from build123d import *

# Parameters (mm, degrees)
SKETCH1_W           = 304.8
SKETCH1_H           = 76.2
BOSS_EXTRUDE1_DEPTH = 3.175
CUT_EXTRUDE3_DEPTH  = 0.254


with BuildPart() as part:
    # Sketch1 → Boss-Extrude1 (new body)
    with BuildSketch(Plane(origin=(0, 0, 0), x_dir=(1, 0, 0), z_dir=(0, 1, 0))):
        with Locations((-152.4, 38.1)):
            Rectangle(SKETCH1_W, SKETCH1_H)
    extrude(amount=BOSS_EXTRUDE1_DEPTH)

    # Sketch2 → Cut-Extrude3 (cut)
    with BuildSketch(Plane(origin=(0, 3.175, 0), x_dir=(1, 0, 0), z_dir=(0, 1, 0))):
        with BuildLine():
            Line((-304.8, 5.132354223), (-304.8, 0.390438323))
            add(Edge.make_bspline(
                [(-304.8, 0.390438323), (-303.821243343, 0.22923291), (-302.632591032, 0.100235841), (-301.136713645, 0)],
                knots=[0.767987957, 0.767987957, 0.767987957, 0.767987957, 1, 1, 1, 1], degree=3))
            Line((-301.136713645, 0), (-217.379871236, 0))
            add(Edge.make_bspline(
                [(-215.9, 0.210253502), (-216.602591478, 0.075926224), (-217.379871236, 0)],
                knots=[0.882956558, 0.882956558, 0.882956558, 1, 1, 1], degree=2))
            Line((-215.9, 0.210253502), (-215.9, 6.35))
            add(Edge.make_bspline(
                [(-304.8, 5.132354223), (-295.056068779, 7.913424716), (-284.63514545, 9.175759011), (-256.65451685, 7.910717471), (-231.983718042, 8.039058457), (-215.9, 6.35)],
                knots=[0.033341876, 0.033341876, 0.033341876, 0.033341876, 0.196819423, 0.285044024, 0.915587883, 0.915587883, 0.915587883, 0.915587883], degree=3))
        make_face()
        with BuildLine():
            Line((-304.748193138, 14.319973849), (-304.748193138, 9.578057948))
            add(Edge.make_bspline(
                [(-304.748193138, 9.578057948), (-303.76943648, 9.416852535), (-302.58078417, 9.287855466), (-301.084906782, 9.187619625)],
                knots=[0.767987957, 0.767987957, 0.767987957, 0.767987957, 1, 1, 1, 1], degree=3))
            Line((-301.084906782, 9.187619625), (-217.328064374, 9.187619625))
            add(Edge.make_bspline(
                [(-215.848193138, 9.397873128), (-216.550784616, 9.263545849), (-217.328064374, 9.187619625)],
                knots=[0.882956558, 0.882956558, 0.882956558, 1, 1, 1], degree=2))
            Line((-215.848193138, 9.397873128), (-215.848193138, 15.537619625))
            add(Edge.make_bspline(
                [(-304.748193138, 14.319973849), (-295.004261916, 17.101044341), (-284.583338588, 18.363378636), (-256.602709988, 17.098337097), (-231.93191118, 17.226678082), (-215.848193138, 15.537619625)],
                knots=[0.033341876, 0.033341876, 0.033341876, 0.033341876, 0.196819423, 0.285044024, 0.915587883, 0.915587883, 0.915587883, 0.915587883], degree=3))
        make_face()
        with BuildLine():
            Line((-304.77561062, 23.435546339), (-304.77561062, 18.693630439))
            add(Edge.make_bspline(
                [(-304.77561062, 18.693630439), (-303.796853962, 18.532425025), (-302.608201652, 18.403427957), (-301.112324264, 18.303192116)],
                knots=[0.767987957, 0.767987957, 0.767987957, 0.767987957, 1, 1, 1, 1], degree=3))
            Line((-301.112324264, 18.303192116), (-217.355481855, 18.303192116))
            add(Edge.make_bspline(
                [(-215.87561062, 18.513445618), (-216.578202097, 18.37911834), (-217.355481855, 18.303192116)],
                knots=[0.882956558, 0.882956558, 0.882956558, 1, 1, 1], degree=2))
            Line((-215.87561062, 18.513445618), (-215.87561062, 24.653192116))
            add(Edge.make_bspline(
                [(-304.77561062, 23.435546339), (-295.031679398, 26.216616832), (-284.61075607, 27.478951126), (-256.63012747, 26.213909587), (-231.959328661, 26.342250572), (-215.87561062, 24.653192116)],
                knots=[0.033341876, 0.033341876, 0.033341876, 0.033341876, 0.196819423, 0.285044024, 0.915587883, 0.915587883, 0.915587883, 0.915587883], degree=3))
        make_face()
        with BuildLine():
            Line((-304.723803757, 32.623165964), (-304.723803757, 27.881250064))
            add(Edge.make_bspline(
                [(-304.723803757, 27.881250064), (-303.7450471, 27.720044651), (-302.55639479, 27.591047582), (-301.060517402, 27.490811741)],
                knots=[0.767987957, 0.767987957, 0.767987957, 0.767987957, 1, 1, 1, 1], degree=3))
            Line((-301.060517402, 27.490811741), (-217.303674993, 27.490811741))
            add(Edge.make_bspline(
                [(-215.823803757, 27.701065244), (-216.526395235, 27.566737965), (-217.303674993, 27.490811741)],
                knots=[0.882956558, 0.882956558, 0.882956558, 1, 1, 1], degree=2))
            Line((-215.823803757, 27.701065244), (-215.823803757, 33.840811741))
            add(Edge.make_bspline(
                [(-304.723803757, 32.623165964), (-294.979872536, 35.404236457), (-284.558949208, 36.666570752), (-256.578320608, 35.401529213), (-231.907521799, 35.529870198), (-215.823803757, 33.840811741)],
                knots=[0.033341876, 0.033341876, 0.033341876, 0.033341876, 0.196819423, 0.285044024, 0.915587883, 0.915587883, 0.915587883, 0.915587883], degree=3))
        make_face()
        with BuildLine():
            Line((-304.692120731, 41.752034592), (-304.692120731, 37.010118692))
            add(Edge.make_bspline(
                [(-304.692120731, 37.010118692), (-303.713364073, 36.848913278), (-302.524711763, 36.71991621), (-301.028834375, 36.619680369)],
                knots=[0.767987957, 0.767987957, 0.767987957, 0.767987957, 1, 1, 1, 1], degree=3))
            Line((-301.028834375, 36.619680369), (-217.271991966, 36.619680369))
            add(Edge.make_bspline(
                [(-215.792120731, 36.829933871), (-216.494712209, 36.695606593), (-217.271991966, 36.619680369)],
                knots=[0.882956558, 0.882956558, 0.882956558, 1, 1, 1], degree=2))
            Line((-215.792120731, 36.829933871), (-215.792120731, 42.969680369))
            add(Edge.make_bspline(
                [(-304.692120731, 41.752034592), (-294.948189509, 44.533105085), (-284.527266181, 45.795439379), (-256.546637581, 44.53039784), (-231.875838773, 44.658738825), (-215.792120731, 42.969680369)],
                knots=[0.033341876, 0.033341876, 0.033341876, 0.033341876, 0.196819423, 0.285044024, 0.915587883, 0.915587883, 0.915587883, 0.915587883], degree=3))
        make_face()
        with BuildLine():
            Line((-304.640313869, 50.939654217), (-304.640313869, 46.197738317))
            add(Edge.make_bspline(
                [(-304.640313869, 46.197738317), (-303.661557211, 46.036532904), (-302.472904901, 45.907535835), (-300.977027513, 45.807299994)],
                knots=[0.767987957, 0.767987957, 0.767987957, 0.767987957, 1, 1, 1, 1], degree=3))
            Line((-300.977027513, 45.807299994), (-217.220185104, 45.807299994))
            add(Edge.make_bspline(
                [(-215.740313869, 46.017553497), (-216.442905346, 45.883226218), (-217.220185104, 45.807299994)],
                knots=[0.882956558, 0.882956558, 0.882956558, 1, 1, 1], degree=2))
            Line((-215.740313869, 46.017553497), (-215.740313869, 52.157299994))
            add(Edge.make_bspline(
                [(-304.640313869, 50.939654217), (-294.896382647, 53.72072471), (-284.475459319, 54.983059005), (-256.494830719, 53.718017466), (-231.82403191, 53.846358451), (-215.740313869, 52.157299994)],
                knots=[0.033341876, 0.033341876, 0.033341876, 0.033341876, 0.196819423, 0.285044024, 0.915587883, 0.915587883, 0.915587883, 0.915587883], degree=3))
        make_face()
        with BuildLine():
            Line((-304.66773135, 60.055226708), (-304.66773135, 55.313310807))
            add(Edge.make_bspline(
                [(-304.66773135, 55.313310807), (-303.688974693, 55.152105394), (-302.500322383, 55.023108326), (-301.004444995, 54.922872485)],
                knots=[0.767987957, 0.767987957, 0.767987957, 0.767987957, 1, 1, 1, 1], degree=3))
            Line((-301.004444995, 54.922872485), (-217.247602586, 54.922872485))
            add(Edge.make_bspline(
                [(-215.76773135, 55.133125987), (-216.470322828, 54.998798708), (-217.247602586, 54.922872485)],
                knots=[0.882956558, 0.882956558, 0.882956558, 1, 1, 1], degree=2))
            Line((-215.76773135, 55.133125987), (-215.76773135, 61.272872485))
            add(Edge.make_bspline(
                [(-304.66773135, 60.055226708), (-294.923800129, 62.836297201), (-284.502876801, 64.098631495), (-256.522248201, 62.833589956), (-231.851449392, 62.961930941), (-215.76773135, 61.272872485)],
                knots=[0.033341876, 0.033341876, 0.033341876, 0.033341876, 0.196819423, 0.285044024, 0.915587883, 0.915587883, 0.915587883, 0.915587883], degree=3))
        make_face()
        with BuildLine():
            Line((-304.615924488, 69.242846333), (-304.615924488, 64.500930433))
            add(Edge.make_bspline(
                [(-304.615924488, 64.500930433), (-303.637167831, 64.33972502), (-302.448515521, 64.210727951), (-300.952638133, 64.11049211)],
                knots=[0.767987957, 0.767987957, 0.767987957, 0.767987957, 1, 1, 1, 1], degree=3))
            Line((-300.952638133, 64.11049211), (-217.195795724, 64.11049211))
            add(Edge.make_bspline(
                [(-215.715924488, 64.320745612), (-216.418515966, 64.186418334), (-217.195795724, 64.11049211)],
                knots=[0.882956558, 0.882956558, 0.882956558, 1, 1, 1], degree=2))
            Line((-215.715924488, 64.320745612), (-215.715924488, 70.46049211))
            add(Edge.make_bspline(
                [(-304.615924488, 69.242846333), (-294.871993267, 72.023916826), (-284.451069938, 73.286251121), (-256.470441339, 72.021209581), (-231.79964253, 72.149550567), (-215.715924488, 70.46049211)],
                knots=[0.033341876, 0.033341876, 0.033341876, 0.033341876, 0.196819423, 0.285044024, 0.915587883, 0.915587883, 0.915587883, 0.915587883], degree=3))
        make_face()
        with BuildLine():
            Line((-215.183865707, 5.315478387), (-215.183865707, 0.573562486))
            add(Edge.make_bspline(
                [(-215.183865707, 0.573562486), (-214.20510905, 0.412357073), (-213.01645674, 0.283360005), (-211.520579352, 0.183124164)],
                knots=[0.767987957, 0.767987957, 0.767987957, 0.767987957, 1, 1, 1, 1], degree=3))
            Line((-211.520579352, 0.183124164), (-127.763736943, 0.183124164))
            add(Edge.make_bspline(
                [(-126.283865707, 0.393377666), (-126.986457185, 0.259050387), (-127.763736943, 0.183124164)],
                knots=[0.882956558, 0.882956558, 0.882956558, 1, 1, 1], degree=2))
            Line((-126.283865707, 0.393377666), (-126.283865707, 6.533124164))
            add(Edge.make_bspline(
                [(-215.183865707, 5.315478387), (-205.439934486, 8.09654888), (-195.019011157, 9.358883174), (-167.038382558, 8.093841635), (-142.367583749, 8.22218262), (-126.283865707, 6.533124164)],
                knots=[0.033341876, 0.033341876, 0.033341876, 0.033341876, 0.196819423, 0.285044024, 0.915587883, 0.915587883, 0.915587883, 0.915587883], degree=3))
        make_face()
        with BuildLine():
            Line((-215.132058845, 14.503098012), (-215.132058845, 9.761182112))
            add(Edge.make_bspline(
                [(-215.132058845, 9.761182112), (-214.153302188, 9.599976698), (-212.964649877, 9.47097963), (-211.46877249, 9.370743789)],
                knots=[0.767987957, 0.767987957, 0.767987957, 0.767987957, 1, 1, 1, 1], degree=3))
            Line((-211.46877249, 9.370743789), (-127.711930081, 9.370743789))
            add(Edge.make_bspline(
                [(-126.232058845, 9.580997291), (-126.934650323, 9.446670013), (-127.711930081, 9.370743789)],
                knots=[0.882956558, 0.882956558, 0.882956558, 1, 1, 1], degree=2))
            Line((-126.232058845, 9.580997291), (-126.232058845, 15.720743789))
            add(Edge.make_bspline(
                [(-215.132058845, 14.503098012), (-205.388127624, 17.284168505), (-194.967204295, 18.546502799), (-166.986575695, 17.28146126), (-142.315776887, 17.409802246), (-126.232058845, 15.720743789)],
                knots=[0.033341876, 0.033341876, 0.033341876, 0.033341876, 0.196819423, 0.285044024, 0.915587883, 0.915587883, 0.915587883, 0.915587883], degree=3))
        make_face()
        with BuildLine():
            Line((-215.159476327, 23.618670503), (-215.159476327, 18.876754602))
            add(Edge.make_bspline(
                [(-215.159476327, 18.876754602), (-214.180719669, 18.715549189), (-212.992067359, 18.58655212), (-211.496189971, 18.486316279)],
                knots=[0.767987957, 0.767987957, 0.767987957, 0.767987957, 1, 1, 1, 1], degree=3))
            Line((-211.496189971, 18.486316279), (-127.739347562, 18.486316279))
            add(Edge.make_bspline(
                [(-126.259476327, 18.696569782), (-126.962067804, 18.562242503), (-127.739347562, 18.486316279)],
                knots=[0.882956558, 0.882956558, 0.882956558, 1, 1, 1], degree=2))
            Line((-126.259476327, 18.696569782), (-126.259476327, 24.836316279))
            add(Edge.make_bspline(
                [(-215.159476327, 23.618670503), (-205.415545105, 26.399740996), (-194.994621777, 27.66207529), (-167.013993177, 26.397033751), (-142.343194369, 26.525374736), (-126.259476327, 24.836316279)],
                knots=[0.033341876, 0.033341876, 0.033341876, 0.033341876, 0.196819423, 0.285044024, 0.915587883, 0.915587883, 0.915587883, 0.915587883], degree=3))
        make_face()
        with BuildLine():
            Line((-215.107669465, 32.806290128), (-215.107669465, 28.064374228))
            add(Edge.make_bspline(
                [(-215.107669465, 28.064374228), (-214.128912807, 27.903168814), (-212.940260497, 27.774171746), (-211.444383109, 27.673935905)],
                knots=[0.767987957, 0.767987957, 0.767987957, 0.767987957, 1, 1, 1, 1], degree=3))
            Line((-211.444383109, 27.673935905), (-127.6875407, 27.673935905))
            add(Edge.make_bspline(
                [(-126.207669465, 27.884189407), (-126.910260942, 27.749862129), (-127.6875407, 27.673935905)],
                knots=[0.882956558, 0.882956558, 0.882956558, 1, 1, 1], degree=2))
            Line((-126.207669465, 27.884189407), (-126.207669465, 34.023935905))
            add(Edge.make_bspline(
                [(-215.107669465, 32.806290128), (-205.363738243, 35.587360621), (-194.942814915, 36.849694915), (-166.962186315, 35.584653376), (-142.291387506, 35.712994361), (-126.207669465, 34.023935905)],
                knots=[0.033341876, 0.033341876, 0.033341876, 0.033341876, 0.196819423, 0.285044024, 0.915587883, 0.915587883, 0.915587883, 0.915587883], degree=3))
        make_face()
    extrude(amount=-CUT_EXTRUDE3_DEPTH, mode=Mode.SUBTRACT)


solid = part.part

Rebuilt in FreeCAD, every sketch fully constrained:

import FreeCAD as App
import Part
import Sketcher
Q = App.Units.Quantity


def add_polygon(sketch, points):
    """Adds a closed chain of lines whose ends are joined by coincident constraints."""
    first, n = sketch.GeometryCount, len(points)
    for a, b in zip(points, points[1:] + points[:1]):
        sketch.addGeometry(Part.LineSegment(App.Vector(*a, 0), App.Vector(*b, 0)), False)
    for i in range(n):
        sketch.addConstraint(Sketcher.Constraint("Coincident", first + i, 2, first + (i + 1) % n, 1))

doc = App.newDocument("Part")
body = doc.addObject("PartDesign::Body", "Body")

# Sketch on XZ plane
sketch1 = body.newObject("Sketcher::SketchObject", "Sketch")
sketch1.AttachmentSupport = (doc.getObject("XZ_Plane"), [""])
sketch1.MapMode = "FlatFace"
add_polygon(sketch1, [(-305, -76), (-305, 0), (0, 0), (0, -76)])  # lines 0-3
sketch1.addConstraint([
    Sketcher.Constraint("Vertical", 0),
    Sketcher.Constraint("Horizontal", 1),
    Sketcher.Constraint("Vertical", 2),
    Sketcher.Constraint("Horizontal", 3),
    Sketcher.Constraint("Coincident", 1, 2, -1, 1),
    Sketcher.Constraint("DistanceX", 1, 1, 1, 2, Q("12 in")),
    Sketcher.Constraint("DistanceY", 0, 1, 0, 2, Q("3 in")),
])
pad1 = body.newObject("PartDesign::Pad", "Pad")
pad1.Profile = sketch1
pad1.Length = Q("0.125 in")
pad1.Reversed = True

# Sketch on XZ plane
sketch2 = body.newObject("Sketcher::SketchObject", "Sketch001")
sketch2.AttachmentSupport = (doc.getObject("XZ_Plane"), [""])
sketch2.MapMode = "FlatFace"
sketch2.AttachmentOffset = App.Placement(App.Vector(0, 0, -0.125 * 25.4), App.Rotation())
sketch2.addGeometry([
    Part.LineSegment(App.Vector(-304.8, -5.132354, 0), App.Vector(-304.8, -0.390438, 0)),  # 0
    Part.BSplineCurve([App.Vector(-304.8, -0.390438, 0), App.Vector(-303.821243, -0.229233, 0), App.Vector(-302.632591, -0.100236, 0), App.Vector(-301.136714, 0, 0)], [4, 4], [0.767987957, 1], False, 3, [1, 1, 1, 1], False),  # 1
    Part.LineSegment(App.Vector(-301.136714, 0, 0), App.Vector(-217.379871, 0, 0)),  # 2
    Part.BSplineCurve([App.Vector(-215.9, -0.210254, 0), App.Vector(-216.602591, -0.075926, 0), App.Vector(-217.379871, 0, 0)], [3, 3], [0.882956558, 1], False, 2, [1, 1, 1], False),  # 3
    Part.LineSegment(App.Vector(-215.9, -0.210254, 0), App.Vector(-215.9, -6.35, 0)),  # 4
    Part.BSplineCurve([App.Vector(-304.8, -5.132354, 0), App.Vector(-295.056069, -7.913425, 0), App.Vector(-284.635145, -9.175759, 0), App.Vector(-256.654517, -7.910717, 0), App.Vector(-231.983718, -8.039058, 0), App.Vector(-215.9, -6.35, 0)], [4, 1, 1, 4], [0.033341876, 0.196819423, 0.285044024, 0.915587883], False, 3, [1, 1, 1, 1, 1, 1], False),  # 5
    Part.LineSegment(App.Vector(-304.748193, -14.319974, 0), App.Vector(-304.748193, -9.578058, 0)),  # 6
    Part.BSplineCurve([App.Vector(-304.748193, -9.578058, 0), App.Vector(-303.769436, -9.416853, 0), App.Vector(-302.580784, -9.287855, 0), App.Vector(-301.084907, -9.18762, 0)], [4, 4], [0.767987957, 1], False, 3, [1, 1, 1, 1], False),  # 7
    Part.LineSegment(App.Vector(-301.084907, -9.18762, 0), App.Vector(-217.328064, -9.18762, 0)),  # 8
    Part.BSplineCurve([App.Vector(-215.848193, -9.397873, 0), App.Vector(-216.550785, -9.263546, 0), App.Vector(-217.328064, -9.18762, 0)], [3, 3], [0.882956558, 1], False, 2, [1, 1, 1], False),  # 9
    Part.LineSegment(App.Vector(-215.848193, -9.397873, 0), App.Vector(-215.848193, -15.53762, 0)),  # 10
    Part.BSplineCurve([App.Vector(-304.748193, -14.319974, 0), App.Vector(-295.004262, -17.101044, 0), App.Vector(-284.583339, -18.363379, 0), App.Vector(-256.60271, -17.098337, 0), App.Vector(-231.931911, -17.226678, 0), App.Vector(-215.848193, -15.53762, 0)], [4, 1, 1, 4], [0.033341876, 0.196819423, 0.285044024, 0.915587883], False, 3, [1, 1, 1, 1, 1, 1], False),  # 11
    Part.LineSegment(App.Vector(-304.775611, -23.435546, 0), App.Vector(-304.775611, -18.69363, 0)),  # 12
    Part.BSplineCurve([App.Vector(-304.775611, -18.69363, 0), App.Vector(-303.796854, -18.532425, 0), App.Vector(-302.608202, -18.403428, 0), App.Vector(-301.112324, -18.303192, 0)], [4, 4], [0.767987957, 1], False, 3, [1, 1, 1, 1], False),  # 13
    Part.LineSegment(App.Vector(-301.112324, -18.303192, 0), App.Vector(-217.355482, -18.303192, 0)),  # 14
    Part.BSplineCurve([App.Vector(-215.875611, -18.513446, 0), App.Vector(-216.578202, -18.379118, 0), App.Vector(-217.355482, -18.303192, 0)], [3, 3], [0.882956558, 1], False, 2, [1, 1, 1], False),  # 15
    Part.LineSegment(App.Vector(-215.875611, -18.513446, 0), App.Vector(-215.875611, -24.653192, 0)),  # 16
    Part.BSplineCurve([App.Vector(-304.775611, -23.435546, 0), App.Vector(-295.031679, -26.216617, 0), App.Vector(-284.610756, -27.478951, 0), App.Vector(-256.630127, -26.21391, 0), App.Vector(-231.959329, -26.342251, 0), App.Vector(-215.875611, -24.653192, 0)], [4, 1, 1, 4], [0.033341876, 0.196819423, 0.285044024, 0.915587883], False, 3, [1, 1, 1, 1, 1, 1], False),  # 17
    Part.LineSegment(App.Vector(-304.723804, -32.623166, 0), App.Vector(-304.723804, -27.88125, 0)),  # 18
    Part.BSplineCurve([App.Vector(-304.723804, -27.88125, 0), App.Vector(-303.745047, -27.720045, 0), App.Vector(-302.556395, -27.591048, 0), App.Vector(-301.060517, -27.490812, 0)], [4, 4], [0.767987957, 1], False, 3, [1, 1, 1, 1], False),  # 19
    Part.LineSegment(App.Vector(-301.060517, -27.490812, 0), App.Vector(-217.303675, -27.490812, 0)),  # 20
    Part.BSplineCurve([App.Vector(-215.823804, -27.701065, 0), App.Vector(-216.526395, -27.566738, 0), App.Vector(-217.303675, -27.490812, 0)], [3, 3], [0.882956558, 1], False, 2, [1, 1, 1], False),  # 21
    Part.LineSegment(App.Vector(-215.823804, -27.701065, 0), App.Vector(-215.823804, -33.840812, 0)),  # 22
    Part.BSplineCurve([App.Vector(-304.723804, -32.623166, 0), App.Vector(-294.979873, -35.404236, 0), App.Vector(-284.558949, -36.666571, 0), App.Vector(-256.578321, -35.401529, 0), App.Vector(-231.907522, -35.52987, 0), App.Vector(-215.823804, -33.840812, 0)], [4, 1, 1, 4], [0.033341876, 0.196819423, 0.285044024, 0.915587883], False, 3, [1, 1, 1, 1, 1, 1], False),  # 23
    Part.LineSegment(App.Vector(-304.692121, -41.752035, 0), App.Vector(-304.692121, -37.010119, 0)),  # 24
    Part.BSplineCurve([App.Vector(-304.692121, -37.010119, 0), App.Vector(-303.713364, -36.848913, 0), App.Vector(-302.524712, -36.719916, 0), App.Vector(-301.028834, -36.61968, 0)], [4, 4], [0.767987957, 1], False, 3, [1, 1, 1, 1], False),  # 25
    Part.LineSegment(App.Vector(-301.028834, -36.61968, 0), App.Vector(-217.271992, -36.61968, 0)),  # 26
    Part.BSplineCurve([App.Vector(-215.792121, -36.829934, 0), App.Vector(-216.494712, -36.695607, 0), App.Vector(-217.271992, -36.61968, 0)], [3, 3], [0.882956558, 1], False, 2, [1, 1, 1], False),  # 27
    Part.LineSegment(App.Vector(-215.792121, -36.829934, 0), App.Vector(-215.792121, -42.96968, 0)),  # 28
    Part.BSplineCurve([App.Vector(-304.692121, -41.752035, 0), App.Vector(-294.94819, -44.533105, 0), App.Vector(-284.527266, -45.795439, 0), App.Vector(-256.546638, -44.530398, 0), App.Vector(-231.875839, -44.658739, 0), App.Vector(-215.792121, -42.96968, 0)], [4, 1, 1, 4], [0.033341876, 0.196819423, 0.285044024, 0.915587883], False, 3, [1, 1, 1, 1, 1, 1], False),  # 29
    Part.LineSegment(App.Vector(-304.640314, -50.939654, 0), App.Vector(-304.640314, -46.197738, 0)),  # 30
    Part.BSplineCurve([App.Vector(-304.640314, -46.197738, 0), App.Vector(-303.661557, -46.036533, 0), App.Vector(-302.472905, -45.907536, 0), App.Vector(-300.977028, -45.8073, 0)], [4, 4], [0.767987957, 1], False, 3, [1, 1, 1, 1], False),  # 31
    Part.LineSegment(App.Vector(-300.977028, -45.8073, 0), App.Vector(-217.220185, -45.8073, 0)),  # 32
    Part.BSplineCurve([App.Vector(-215.740314, -46.017553, 0), App.Vector(-216.442905, -45.883226, 0), App.Vector(-217.220185, -45.8073, 0)], [3, 3], [0.882956558, 1], False, 2, [1, 1, 1], False),  # 33
    Part.LineSegment(App.Vector(-215.740314, -46.017553, 0), App.Vector(-215.740314, -52.1573, 0)),  # 34
    Part.BSplineCurve([App.Vector(-304.640314, -50.939654, 0), App.Vector(-294.896383, -53.720725, 0), App.Vector(-284.475459, -54.983059, 0), App.Vector(-256.494831, -53.718017, 0), App.Vector(-231.824032, -53.846358, 0), App.Vector(-215.740314, -52.1573, 0)], [4, 1, 1, 4], [0.033341876, 0.196819423, 0.285044024, 0.915587883], False, 3, [1, 1, 1, 1, 1, 1], False),  # 35
    Part.LineSegment(App.Vector(-304.667731, -60.055227, 0), App.Vector(-304.667731, -55.313311, 0)),  # 36
    Part.BSplineCurve([App.Vector(-304.667731, -55.313311, 0), App.Vector(-303.688975, -55.152105, 0), App.Vector(-302.500322, -55.023108, 0), App.Vector(-301.004445, -54.922872, 0)], [4, 4], [0.767987957, 1], False, 3, [1, 1, 1, 1], False),  # 37
    Part.LineSegment(App.Vector(-301.004445, -54.922872, 0), App.Vector(-217.247603, -54.922872, 0)),  # 38
    Part.BSplineCurve([App.Vector(-215.767731, -55.133126, 0), App.Vector(-216.470323, -54.998799, 0), App.Vector(-217.247603, -54.922872, 0)], [3, 3], [0.882956558, 1], False, 2, [1, 1, 1], False),  # 39
    Part.LineSegment(App.Vector(-215.767731, -55.133126, 0), App.Vector(-215.767731, -61.272872, 0)),  # 40
    Part.BSplineCurve([App.Vector(-304.667731, -60.055227, 0), App.Vector(-294.9238, -62.836297, 0), App.Vector(-284.502877, -64.098631, 0), App.Vector(-256.522248, -62.83359, 0), App.Vector(-231.851449, -62.961931, 0), App.Vector(-215.767731, -61.272872, 0)], [4, 1, 1, 4], [0.033341876, 0.196819423, 0.285044024, 0.915587883], False, 3, [1, 1, 1, 1, 1, 1], False),  # 41
    Part.LineSegment(App.Vector(-304.615924, -69.242846, 0), App.Vector(-304.615924, -64.50093, 0)),  # 42
    Part.BSplineCurve([App.Vector(-304.615924, -64.50093, 0), App.Vector(-303.637168, -64.339725, 0), App.Vector(-302.448516, -64.210728, 0), App.Vector(-300.952638, -64.110492, 0)], [4, 4], [0.767987957, 1], False, 3, [1, 1, 1, 1], False),  # 43
    Part.LineSegment(App.Vector(-300.952638, -64.110492, 0), App.Vector(-217.195796, -64.110492, 0)),  # 44
    Part.BSplineCurve([App.Vector(-215.715924, -64.320746, 0), App.Vector(-216.418516, -64.186418, 0), App.Vector(-217.195796, -64.110492, 0)], [3, 3], [0.882956558, 1], False, 2, [1, 1, 1], False),  # 45
    Part.LineSegment(App.Vector(-215.715924, -64.320746, 0), App.Vector(-215.715924, -70.460492, 0)),  # 46
    Part.BSplineCurve([App.Vector(-304.615924, -69.242846, 0), App.Vector(-294.871993, -72.023917, 0), App.Vector(-284.45107, -73.286251, 0), App.Vector(-256.470441, -72.02121, 0), App.Vector(-231.799643, -72.149551, 0), App.Vector(-215.715924, -70.460492, 0)], [4, 1, 1, 4], [0.033341876, 0.196819423, 0.285044024, 0.915587883], False, 3, [1, 1, 1, 1, 1, 1], False),  # 47
    Part.LineSegment(App.Vector(-215.183866, -5.315478, 0), App.Vector(-215.183866, -0.573562, 0)),  # 48
    Part.BSplineCurve([App.Vector(-215.183866, -0.573562, 0), App.Vector(-214.205109, -0.412357, 0), App.Vector(-213.016457, -0.28336, 0), App.Vector(-211.520579, -0.183124, 0)], [4, 4], [0.767987957, 1], False, 3, [1, 1, 1, 1], False),  # 49
    Part.LineSegment(App.Vector(-211.520579, -0.183124, 0), App.Vector(-127.763737, -0.183124, 0)),  # 50
    Part.BSplineCurve([App.Vector(-126.283866, -0.393378, 0), App.Vector(-126.986457, -0.25905, 0), App.Vector(-127.763737, -0.183124, 0)], [3, 3], [0.882956558, 1], False, 2, [1, 1, 1], False),  # 51
    Part.LineSegment(App.Vector(-126.283866, -0.393378, 0), App.Vector(-126.283866, -6.533124, 0)),  # 52
    Part.BSplineCurve([App.Vector(-215.183866, -5.315478, 0), App.Vector(-205.439934, -8.096549, 0), App.Vector(-195.019011, -9.358883, 0), App.Vector(-167.038383, -8.093842, 0), App.Vector(-142.367584, -8.222183, 0), App.Vector(-126.283866, -6.533124, 0)], [4, 1, 1, 4], [0.033341876, 0.196819423, 0.285044024, 0.915587883], False, 3, [1, 1, 1, 1, 1, 1], False),  # 53
    Part.LineSegment(App.Vector(-215.132059, -14.503098, 0), App.Vector(-215.132059, -9.761182, 0)),  # 54
    Part.BSplineCurve([App.Vector(-215.132059, -9.761182, 0), App.Vector(-214.153302, -9.599977, 0), App.Vector(-212.96465, -9.47098, 0), App.Vector(-211.468772, -9.370744, 0)], [4, 4], [0.767987957, 1], False, 3, [1, 1, 1, 1], False),  # 55
    Part.LineSegment(App.Vector(-211.468772, -9.370744, 0), App.Vector(-127.71193, -9.370744, 0)),  # 56
    Part.BSplineCurve([App.Vector(-126.232059, -9.580997, 0), App.Vector(-126.93465, -9.44667, 0), App.Vector(-127.71193, -9.370744, 0)], [3, 3], [0.882956558, 1], False, 2, [1, 1, 1], False),  # 57
    Part.LineSegment(App.Vector(-126.232059, -9.580997, 0), App.Vector(-126.232059, -15.720744, 0)),  # 58
    Part.BSplineCurve([App.Vector(-215.132059, -14.503098, 0), App.Vector(-205.388128, -17.284169, 0), App.Vector(-194.967204, -18.546503, 0), App.Vector(-166.986576, -17.281461, 0), App.Vector(-142.315777, -17.409802, 0), App.Vector(-126.232059, -15.720744, 0)], [4, 1, 1, 4], [0.033341876, 0.196819423, 0.285044024, 0.915587883], False, 3, [1, 1, 1, 1, 1, 1], False),  # 59
    Part.LineSegment(App.Vector(-215.159476, -23.618671, 0), App.Vector(-215.159476, -18.876755, 0)),  # 60
    Part.BSplineCurve([App.Vector(-215.159476, -18.876755, 0), App.Vector(-214.18072, -18.715549, 0), App.Vector(-212.992067, -18.586552, 0), App.Vector(-211.49619, -18.486316, 0)], [4, 4], [0.767987957, 1], False, 3, [1, 1, 1, 1], False),  # 61
    Part.LineSegment(App.Vector(-211.49619, -18.486316, 0), App.Vector(-127.739348, -18.486316, 0)),  # 62
    Part.BSplineCurve([App.Vector(-126.259476, -18.69657, 0), App.Vector(-126.962068, -18.562243, 0), App.Vector(-127.739348, -18.486316, 0)], [3, 3], [0.882956558, 1], False, 2, [1, 1, 1], False),  # 63
    Part.LineSegment(App.Vector(-126.259476, -18.69657, 0), App.Vector(-126.259476, -24.836316, 0)),  # 64
    Part.BSplineCurve([App.Vector(-215.159476, -23.618671, 0), App.Vector(-205.415545, -26.399741, 0), App.Vector(-194.994622, -27.662075, 0), App.Vector(-167.013993, -26.397034, 0), App.Vector(-142.343194, -26.525375, 0), App.Vector(-126.259476, -24.836316, 0)], [4, 1, 1, 4], [0.033341876, 0.196819423, 0.285044024, 0.915587883], False, 3, [1, 1, 1, 1, 1, 1], False),  # 65
    Part.LineSegment(App.Vector(-215.107669, -32.80629, 0), App.Vector(-215.107669, -28.064374, 0)),  # 66
    Part.BSplineCurve([App.Vector(-215.107669, -28.064374, 0), App.Vector(-214.128913, -27.903169, 0), App.Vector(-212.94026, -27.774172, 0), App.Vector(-211.444383, -27.673936, 0)], [4, 4], [0.767987957, 1], False, 3, [1, 1, 1, 1], False),  # 67
    Part.LineSegment(App.Vector(-211.444383, -27.673936, 0), App.Vector(-127.687541, -27.673936, 0)),  # 68
    Part.BSplineCurve([App.Vector(-126.207669, -27.884189, 0), App.Vector(-126.910261, -27.749862, 0), App.Vector(-127.687541, -27.673936, 0)], [3, 3], [0.882956558, 1], False, 2, [1, 1, 1], False),  # 69
    Part.LineSegment(App.Vector(-126.207669, -27.884189, 0), App.Vector(-126.207669, -34.023936, 0)),  # 70
    Part.BSplineCurve([App.Vector(-215.107669, -32.80629, 0), App.Vector(-205.363738, -35.587361, 0), App.Vector(-194.942815, -36.849695, 0), App.Vector(-166.962186, -35.584653, 0), App.Vector(-142.291388, -35.712994, 0), App.Vector(-126.207669, -34.023936, 0)], [4, 1, 1, 4], [0.033341876, 0.196819423, 0.285044024, 0.915587883], False, 3, [1, 1, 1, 1, 1, 1], False),  # 71
], False)
sketch2.addConstraint([
    Sketcher.Constraint("Block", 1),
    Sketcher.Constraint("Block", 3),
    Sketcher.Constraint("Block", 5),
    Sketcher.Constraint("Block", 7),
    Sketcher.Constraint("Block", 9),
    Sketcher.Constraint("Block", 11),
    Sketcher.Constraint("Block", 13),
    Sketcher.Constraint("Block", 15),
    Sketcher.Constraint("Block", 17),
    Sketcher.Constraint("Block", 19),
    Sketcher.Constraint("Block", 21),
    Sketcher.Constraint("Block", 23),
    Sketcher.Constraint("Block", 25),
    Sketcher.Constraint("Block", 27),
    Sketcher.Constraint("Block", 29),
    Sketcher.Constraint("Block", 31),
    Sketcher.Constraint("Block", 33),
    Sketcher.Constraint("Block", 35),
    Sketcher.Constraint("Block", 37),
    Sketcher.Constraint("Block", 39),
    Sketcher.Constraint("Block", 41),
    Sketcher.Constraint("Block", 43),
    Sketcher.Constraint("Block", 45),
    Sketcher.Constraint("Block", 47),
    Sketcher.Constraint("Block", 49),
    Sketcher.Constraint("Block", 51),
    Sketcher.Constraint("Block", 53),
    Sketcher.Constraint("Block", 55),
    Sketcher.Constraint("Block", 57),
    Sketcher.Constraint("Block", 59),
    Sketcher.Constraint("Block", 61),
    Sketcher.Constraint("Block", 63),
    Sketcher.Constraint("Block", 65),
    Sketcher.Constraint("Block", 67),
    Sketcher.Constraint("Block", 69),
    Sketcher.Constraint("Block", 71),
    Sketcher.Constraint("Coincident", 0, 2, 1, 1),
    Sketcher.Constraint("Coincident", 1, 2, 2, 1),
    Sketcher.Constraint("Coincident", 2, 2, 3, 2),
    Sketcher.Constraint("Coincident", 3, 1, 4, 1),
    Sketcher.Constraint("Coincident", 4, 2, 5, 2),
    Sketcher.Constraint("Coincident", 5, 1, 0, 1),
    Sketcher.Constraint("Coincident", 6, 2, 7, 1),
    Sketcher.Constraint("Coincident", 7, 2, 8, 1),
    Sketcher.Constraint("Coincident", 8, 2, 9, 2),
    Sketcher.Constraint("Coincident", 9, 1, 10, 1),
    Sketcher.Constraint("Coincident", 10, 2, 11, 2),
    Sketcher.Constraint("Coincident", 11, 1, 6, 1),
    Sketcher.Constraint("Coincident", 12, 2, 13, 1),
    Sketcher.Constraint("Coincident", 13, 2, 14, 1),
    Sketcher.Constraint("Coincident", 14, 2, 15, 2),
    Sketcher.Constraint("Coincident", 15, 1, 16, 1),
    Sketcher.Constraint("Coincident", 16, 2, 17, 2),
    Sketcher.Constraint("Coincident", 17, 1, 12, 1),
    Sketcher.Constraint("Coincident", 18, 2, 19, 1),
    Sketcher.Constraint("Coincident", 19, 2, 20, 1),
    Sketcher.Constraint("Coincident", 20, 2, 21, 2),
    Sketcher.Constraint("Coincident", 21, 1, 22, 1),
    Sketcher.Constraint("Coincident", 22, 2, 23, 2),
    Sketcher.Constraint("Coincident", 23, 1, 18, 1),
    Sketcher.Constraint("Coincident", 24, 2, 25, 1),
    Sketcher.Constraint("Coincident", 25, 2, 26, 1),
    Sketcher.Constraint("Coincident", 26, 2, 27, 2),
    Sketcher.Constraint("Coincident", 27, 1, 28, 1),
    Sketcher.Constraint("Coincident", 28, 2, 29, 2),
    Sketcher.Constraint("Coincident", 29, 1, 24, 1),
    Sketcher.Constraint("Coincident", 30, 2, 31, 1),
    Sketcher.Constraint("Coincident", 31, 2, 32, 1),
    Sketcher.Constraint("Coincident", 32, 2, 33, 2),
    Sketcher.Constraint("Coincident", 33, 1, 34, 1),
    Sketcher.Constraint("Coincident", 34, 2, 35, 2),
    Sketcher.Constraint("Coincident", 35, 1, 30, 1),
    Sketcher.Constraint("Coincident", 36, 2, 37, 1),
    Sketcher.Constraint("Coincident", 37, 2, 38, 1),
    Sketcher.Constraint("Coincident", 38, 2, 39, 2),
    Sketcher.Constraint("Coincident", 39, 1, 40, 1),
    Sketcher.Constraint("Coincident", 40, 2, 41, 2),
    Sketcher.Constraint("Coincident", 41, 1, 36, 1),
    Sketcher.Constraint("Coincident", 42, 2, 43, 1),
    Sketcher.Constraint("Coincident", 43, 2, 44, 1),
    Sketcher.Constraint("Coincident", 44, 2, 45, 2),
    Sketcher.Constraint("Coincident", 45, 1, 46, 1),
    Sketcher.Constraint("Coincident", 46, 2, 47, 2),
    Sketcher.Constraint("Coincident", 47, 1, 42, 1),
    Sketcher.Constraint("Coincident", 48, 2, 49, 1),
    Sketcher.Constraint("Coincident", 49, 2, 50, 1),
    Sketcher.Constraint("Coincident", 50, 2, 51, 2),
    Sketcher.Constraint("Coincident", 51, 1, 52, 1),
    Sketcher.Constraint("Coincident", 52, 2, 53, 2),
    Sketcher.Constraint("Coincident", 53, 1, 48, 1),
    Sketcher.Constraint("Coincident", 54, 2, 55, 1),
    Sketcher.Constraint("Coincident", 55, 2, 56, 1),
    Sketcher.Constraint("Coincident", 56, 2, 57, 2),
    Sketcher.Constraint("Coincident", 57, 1, 58, 1),
    Sketcher.Constraint("Coincident", 58, 2, 59, 2),
    Sketcher.Constraint("Coincident", 59, 1, 54, 1),
    Sketcher.Constraint("Coincident", 60, 2, 61, 1),
    Sketcher.Constraint("Coincident", 61, 2, 62, 1),
    Sketcher.Constraint("Coincident", 62, 2, 63, 2),
    Sketcher.Constraint("Coincident", 63, 1, 64, 1),
    Sketcher.Constraint("Coincident", 64, 2, 65, 2),
    Sketcher.Constraint("Coincident", 65, 1, 60, 1),
    Sketcher.Constraint("Coincident", 66, 2, 67, 1),
    Sketcher.Constraint("Coincident", 67, 2, 68, 1),
    Sketcher.Constraint("Coincident", 68, 2, 69, 2),
    Sketcher.Constraint("Coincident", 69, 1, 70, 1),
    Sketcher.Constraint("Coincident", 70, 2, 71, 2),
    Sketcher.Constraint("Coincident", 71, 1, 66, 1),
])
pocket1 = body.newObject("PartDesign::Pocket", "Pocket")
pocket1.Profile = sketch2
pocket1.Length = Q("0.01 in")
pocket1.Reversed = True

doc.recompute()
